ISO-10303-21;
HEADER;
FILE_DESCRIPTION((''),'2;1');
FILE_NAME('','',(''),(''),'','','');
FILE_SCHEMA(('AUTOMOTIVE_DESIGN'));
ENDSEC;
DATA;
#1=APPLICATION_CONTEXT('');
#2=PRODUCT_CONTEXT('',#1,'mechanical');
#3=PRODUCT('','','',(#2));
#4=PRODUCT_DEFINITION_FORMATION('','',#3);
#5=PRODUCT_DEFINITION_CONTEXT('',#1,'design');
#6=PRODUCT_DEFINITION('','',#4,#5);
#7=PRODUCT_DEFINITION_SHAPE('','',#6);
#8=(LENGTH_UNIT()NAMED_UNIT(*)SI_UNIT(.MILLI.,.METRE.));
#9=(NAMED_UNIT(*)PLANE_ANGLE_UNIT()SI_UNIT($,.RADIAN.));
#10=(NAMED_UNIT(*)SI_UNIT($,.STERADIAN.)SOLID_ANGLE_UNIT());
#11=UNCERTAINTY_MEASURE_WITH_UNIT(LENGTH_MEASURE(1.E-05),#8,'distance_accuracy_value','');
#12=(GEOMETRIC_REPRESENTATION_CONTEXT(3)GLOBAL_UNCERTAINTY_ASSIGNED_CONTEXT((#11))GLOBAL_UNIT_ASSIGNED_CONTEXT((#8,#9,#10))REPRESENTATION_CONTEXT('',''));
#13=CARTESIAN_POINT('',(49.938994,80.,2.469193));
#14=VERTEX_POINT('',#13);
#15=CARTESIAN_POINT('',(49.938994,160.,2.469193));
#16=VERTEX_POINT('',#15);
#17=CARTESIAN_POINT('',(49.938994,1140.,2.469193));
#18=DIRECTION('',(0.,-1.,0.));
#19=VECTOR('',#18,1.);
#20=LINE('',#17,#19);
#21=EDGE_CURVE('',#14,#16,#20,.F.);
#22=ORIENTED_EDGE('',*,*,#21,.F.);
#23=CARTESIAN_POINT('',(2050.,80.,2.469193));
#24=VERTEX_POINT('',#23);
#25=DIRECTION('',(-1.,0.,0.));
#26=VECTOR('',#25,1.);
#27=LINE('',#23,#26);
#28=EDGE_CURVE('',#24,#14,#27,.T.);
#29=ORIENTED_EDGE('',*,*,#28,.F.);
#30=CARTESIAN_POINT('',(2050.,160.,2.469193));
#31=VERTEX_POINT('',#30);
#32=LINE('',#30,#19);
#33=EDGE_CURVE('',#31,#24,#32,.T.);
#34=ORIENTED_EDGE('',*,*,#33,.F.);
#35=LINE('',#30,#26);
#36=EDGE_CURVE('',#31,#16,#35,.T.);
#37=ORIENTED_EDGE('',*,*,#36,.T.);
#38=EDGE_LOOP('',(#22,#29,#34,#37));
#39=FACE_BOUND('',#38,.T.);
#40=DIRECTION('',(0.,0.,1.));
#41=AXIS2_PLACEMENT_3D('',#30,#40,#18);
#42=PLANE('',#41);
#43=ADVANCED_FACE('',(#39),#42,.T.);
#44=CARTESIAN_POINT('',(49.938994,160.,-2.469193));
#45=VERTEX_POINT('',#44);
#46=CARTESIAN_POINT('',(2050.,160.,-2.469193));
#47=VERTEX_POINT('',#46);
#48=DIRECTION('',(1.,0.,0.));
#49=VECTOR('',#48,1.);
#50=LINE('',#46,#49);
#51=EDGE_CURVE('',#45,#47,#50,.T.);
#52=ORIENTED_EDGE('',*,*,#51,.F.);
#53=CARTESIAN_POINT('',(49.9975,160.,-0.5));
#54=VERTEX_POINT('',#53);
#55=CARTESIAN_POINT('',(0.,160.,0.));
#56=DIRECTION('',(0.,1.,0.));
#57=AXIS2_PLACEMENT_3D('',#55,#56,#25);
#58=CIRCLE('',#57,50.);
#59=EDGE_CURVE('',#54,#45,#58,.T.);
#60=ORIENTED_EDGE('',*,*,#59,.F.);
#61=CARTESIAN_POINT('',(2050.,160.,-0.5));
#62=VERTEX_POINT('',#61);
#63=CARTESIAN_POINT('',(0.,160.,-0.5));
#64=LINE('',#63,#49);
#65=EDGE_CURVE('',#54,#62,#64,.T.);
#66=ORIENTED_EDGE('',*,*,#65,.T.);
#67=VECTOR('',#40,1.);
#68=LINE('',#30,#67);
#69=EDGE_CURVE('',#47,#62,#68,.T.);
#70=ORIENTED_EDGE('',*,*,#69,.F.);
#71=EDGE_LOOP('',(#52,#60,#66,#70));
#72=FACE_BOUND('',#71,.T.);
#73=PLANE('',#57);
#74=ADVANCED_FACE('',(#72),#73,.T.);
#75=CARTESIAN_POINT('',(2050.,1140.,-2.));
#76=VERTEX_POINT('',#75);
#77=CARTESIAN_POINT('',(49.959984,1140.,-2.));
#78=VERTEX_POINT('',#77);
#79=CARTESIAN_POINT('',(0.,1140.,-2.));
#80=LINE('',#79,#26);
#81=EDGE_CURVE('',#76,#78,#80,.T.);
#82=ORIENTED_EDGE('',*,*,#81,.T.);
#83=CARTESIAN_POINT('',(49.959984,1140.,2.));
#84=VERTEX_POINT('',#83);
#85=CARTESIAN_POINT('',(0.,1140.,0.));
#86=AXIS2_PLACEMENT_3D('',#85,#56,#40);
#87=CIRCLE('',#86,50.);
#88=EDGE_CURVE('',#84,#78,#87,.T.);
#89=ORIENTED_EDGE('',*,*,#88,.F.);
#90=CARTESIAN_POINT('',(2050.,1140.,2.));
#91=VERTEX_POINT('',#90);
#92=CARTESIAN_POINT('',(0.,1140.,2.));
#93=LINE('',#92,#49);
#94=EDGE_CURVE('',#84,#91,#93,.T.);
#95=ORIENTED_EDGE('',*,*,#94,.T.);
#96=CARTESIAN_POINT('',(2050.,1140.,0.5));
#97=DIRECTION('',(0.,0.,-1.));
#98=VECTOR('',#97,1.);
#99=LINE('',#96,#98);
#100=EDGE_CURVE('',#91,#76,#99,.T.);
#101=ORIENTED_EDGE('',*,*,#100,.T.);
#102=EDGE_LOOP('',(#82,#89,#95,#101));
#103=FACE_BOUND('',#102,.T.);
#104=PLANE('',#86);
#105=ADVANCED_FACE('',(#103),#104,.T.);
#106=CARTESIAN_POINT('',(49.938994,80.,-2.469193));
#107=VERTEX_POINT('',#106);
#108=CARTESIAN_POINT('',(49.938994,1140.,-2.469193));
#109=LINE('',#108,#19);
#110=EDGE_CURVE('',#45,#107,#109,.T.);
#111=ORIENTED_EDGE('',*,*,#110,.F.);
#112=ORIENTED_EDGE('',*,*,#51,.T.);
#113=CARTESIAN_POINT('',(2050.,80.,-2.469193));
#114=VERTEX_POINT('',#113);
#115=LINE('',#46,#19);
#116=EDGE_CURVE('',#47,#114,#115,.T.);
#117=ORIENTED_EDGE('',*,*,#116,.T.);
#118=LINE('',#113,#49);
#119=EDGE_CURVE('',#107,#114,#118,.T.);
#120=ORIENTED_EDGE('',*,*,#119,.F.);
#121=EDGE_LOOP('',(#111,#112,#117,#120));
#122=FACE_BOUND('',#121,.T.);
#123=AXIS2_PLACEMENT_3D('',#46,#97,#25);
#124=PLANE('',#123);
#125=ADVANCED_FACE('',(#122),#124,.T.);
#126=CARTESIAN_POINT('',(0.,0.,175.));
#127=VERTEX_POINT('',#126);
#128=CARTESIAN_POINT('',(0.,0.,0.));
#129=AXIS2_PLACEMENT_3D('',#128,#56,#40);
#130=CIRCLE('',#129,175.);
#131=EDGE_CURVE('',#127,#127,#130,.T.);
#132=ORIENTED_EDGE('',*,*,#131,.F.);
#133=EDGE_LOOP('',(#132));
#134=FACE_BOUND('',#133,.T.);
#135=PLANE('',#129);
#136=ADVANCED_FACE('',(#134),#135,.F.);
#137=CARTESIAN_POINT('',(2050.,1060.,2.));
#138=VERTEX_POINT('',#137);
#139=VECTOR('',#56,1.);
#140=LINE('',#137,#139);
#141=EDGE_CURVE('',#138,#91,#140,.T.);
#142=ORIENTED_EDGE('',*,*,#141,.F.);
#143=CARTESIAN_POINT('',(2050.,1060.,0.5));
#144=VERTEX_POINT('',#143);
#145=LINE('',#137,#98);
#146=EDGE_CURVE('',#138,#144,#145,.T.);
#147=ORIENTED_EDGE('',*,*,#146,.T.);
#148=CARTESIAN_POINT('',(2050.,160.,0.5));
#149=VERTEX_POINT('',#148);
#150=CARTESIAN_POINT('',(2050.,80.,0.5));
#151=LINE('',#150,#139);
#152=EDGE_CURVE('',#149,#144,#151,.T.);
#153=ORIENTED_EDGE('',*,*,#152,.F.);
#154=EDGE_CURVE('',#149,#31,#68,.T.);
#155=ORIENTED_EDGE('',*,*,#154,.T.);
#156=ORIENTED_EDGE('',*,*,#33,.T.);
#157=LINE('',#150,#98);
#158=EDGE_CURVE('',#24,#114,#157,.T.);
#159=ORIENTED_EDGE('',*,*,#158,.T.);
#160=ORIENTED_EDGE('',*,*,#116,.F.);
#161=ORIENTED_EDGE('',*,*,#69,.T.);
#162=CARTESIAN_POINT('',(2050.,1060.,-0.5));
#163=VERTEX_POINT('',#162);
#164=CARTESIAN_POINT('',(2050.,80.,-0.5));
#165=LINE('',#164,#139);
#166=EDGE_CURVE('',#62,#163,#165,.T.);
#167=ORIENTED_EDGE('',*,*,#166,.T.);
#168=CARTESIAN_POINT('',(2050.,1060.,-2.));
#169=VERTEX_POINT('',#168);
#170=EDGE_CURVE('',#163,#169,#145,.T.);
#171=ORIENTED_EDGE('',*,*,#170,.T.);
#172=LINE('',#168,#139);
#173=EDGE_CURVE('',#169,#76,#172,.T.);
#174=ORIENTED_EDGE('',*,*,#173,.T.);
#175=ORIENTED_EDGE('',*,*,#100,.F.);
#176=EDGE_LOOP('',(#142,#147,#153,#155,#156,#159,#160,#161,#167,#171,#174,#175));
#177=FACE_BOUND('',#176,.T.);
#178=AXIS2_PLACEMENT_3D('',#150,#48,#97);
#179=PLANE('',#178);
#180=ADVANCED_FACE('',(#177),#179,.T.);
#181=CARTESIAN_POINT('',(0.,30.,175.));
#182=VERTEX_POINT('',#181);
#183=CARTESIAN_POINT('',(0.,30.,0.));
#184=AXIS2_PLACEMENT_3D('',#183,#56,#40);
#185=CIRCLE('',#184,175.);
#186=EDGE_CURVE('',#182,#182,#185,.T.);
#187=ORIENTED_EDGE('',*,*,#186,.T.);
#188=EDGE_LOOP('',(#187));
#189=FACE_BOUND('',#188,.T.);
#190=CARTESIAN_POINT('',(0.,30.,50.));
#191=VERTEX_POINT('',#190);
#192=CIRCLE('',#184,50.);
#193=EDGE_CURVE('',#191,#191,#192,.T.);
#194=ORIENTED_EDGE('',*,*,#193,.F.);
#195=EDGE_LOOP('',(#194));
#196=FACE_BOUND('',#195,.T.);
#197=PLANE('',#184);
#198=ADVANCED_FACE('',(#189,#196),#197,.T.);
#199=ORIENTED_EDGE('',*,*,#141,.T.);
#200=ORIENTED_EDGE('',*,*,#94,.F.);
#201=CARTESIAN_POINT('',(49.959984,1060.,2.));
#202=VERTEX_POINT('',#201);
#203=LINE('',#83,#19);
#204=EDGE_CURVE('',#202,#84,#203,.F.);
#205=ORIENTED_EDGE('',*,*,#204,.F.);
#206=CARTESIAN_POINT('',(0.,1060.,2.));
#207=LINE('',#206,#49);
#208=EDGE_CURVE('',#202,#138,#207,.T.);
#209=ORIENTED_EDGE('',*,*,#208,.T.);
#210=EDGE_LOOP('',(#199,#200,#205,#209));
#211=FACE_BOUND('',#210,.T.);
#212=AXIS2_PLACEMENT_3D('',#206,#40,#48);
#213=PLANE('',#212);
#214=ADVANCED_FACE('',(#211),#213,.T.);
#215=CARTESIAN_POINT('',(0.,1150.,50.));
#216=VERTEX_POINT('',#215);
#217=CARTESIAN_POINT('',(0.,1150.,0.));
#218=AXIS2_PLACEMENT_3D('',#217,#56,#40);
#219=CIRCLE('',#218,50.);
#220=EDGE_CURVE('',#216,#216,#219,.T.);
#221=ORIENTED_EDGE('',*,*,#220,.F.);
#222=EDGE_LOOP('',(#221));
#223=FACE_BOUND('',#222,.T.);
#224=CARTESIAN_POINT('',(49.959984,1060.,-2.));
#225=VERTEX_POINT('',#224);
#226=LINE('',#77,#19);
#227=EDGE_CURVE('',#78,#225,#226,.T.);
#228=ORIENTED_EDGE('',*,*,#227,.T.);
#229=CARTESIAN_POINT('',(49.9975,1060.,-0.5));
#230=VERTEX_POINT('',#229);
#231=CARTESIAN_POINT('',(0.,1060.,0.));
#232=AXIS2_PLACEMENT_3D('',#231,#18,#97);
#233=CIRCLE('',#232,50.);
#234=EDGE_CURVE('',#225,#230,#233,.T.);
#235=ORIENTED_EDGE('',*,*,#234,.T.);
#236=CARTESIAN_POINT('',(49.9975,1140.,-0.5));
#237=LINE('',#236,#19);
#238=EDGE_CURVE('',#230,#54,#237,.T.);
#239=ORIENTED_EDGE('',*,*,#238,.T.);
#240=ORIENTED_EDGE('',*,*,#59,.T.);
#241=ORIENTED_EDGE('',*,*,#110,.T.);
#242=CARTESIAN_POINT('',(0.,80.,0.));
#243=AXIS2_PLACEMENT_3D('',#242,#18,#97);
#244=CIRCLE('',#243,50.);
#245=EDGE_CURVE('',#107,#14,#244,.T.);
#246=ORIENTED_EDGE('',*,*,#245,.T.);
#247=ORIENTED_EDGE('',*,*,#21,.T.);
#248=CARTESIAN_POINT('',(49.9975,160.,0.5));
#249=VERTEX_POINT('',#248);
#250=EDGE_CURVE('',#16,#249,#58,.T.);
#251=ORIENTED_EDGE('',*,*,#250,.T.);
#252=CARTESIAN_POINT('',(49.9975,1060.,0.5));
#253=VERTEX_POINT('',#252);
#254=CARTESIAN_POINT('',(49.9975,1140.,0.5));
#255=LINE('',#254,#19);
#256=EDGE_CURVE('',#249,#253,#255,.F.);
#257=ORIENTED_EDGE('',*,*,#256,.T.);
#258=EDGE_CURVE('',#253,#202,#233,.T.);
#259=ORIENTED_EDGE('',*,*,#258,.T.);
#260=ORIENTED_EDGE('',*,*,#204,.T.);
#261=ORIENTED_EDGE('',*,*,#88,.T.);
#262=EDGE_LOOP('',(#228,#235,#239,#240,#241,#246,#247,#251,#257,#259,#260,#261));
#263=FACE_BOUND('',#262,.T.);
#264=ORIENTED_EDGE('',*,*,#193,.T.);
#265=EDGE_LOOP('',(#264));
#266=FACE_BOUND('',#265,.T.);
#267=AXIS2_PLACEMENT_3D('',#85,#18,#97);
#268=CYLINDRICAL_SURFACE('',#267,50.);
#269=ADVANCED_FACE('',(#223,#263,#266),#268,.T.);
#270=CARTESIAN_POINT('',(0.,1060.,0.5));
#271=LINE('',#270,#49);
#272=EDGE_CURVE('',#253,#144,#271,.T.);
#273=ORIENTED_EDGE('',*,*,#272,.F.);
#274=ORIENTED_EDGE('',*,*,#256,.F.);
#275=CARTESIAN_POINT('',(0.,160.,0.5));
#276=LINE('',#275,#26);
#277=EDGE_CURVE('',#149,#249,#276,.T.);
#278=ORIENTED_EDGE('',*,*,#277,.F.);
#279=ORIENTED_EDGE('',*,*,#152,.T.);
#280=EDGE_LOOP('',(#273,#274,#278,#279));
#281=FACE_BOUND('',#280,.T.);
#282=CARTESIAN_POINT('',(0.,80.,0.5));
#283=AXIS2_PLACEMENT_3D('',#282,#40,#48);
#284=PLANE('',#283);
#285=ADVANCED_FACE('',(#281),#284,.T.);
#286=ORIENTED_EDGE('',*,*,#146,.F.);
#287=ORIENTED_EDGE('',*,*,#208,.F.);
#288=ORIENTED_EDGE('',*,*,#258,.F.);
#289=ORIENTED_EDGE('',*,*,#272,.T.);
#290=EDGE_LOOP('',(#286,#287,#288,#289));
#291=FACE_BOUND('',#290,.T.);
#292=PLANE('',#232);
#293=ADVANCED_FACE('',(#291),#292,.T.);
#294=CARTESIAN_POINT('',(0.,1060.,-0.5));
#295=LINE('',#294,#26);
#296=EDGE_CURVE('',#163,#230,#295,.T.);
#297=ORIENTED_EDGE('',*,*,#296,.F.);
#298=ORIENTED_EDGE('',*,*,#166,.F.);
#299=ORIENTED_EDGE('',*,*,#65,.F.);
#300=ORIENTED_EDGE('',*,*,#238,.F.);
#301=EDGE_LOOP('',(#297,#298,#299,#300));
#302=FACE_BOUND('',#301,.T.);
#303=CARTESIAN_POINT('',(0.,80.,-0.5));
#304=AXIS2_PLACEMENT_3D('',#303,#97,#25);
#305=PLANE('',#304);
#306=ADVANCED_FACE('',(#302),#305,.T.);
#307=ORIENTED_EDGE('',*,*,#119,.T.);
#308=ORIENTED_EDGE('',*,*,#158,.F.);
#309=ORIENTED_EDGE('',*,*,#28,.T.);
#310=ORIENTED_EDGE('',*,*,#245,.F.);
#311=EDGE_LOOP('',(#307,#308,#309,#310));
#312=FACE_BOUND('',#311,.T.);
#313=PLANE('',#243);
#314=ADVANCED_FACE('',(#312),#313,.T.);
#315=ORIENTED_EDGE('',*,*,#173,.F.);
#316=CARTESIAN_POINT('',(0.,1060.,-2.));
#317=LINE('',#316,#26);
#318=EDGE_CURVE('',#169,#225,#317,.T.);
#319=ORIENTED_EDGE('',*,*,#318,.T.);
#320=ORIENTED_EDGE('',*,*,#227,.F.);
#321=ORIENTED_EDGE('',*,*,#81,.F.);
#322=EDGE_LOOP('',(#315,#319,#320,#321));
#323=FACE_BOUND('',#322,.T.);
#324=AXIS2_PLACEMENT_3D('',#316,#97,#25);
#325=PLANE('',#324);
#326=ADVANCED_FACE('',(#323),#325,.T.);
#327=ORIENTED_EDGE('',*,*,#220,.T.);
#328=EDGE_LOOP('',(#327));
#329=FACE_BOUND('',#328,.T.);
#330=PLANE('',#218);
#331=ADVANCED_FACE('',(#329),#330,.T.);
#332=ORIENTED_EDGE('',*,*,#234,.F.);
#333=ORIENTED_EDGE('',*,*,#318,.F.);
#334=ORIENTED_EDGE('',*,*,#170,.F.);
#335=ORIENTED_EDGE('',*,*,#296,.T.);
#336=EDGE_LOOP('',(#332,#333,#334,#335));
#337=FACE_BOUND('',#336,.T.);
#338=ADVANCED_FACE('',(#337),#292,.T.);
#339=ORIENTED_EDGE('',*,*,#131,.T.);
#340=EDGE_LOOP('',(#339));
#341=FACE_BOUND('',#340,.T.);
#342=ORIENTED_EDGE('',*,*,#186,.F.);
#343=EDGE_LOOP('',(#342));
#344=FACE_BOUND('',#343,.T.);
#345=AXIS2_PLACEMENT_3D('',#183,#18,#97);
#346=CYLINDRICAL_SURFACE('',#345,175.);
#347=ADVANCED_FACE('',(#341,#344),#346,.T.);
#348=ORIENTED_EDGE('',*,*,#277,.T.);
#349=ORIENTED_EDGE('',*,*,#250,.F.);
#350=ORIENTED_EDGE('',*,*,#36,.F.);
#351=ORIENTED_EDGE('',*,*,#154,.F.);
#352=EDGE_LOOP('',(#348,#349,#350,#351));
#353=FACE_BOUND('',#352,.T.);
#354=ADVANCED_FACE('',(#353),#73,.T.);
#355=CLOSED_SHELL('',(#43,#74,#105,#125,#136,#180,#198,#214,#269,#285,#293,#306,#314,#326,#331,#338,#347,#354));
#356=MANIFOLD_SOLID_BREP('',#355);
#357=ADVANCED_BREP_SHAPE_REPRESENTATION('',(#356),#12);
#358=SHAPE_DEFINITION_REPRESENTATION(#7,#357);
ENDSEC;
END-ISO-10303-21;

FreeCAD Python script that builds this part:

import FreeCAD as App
import Part
import Sketcher


def add_polygon(sketch, points):
    """Adds a closed chain of lines whose ends are joined by coincident constraints."""
    first, n = sketch.GeometryCount, len(points)
    for a, b in zip(points, points[1:] + points[:1]):
        sketch.addGeometry(Part.LineSegment(App.Vector(*a, 0), App.Vector(*b, 0)), False)
    for i in range(n):
        sketch.addConstraint(Sketcher.Constraint("Coincident", first + i, 2, first + (i + 1) % n, 1))

doc = App.newDocument("Part")
body = doc.addObject("PartDesign::Body", "Body")

# Sketch on XZ plane
sketch1 = body.newObject("Sketcher::SketchObject", "Sketch")
sketch1.AttachmentSupport = (doc.getObject("XZ_Plane"), [""])
sketch1.MapMode = "FlatFace"
sketch1.addGeometry(Part.Circle(App.Vector(0, 0, 0), App.Vector(0, 0, 1), 175), False)
sketch1.addConstraint([
    Sketcher.Constraint("Coincident", 0, 3, -1, 1),
    Sketcher.Constraint("Diameter", 0, 350.0),
])
pad1 = body.newObject("PartDesign::Pad", "Pad")
pad1.Profile = sketch1
pad1.Length = 30
pad1.Reversed = True

# Sketch on XZ plane
sketch2 = body.newObject("Sketcher::SketchObject", "Sketch001")
sketch2.AttachmentSupport = (doc.getObject("XZ_Plane"), [""])
sketch2.MapMode = "FlatFace"
sketch2.AttachmentOffset = App.Placement(App.Vector(0, 0, -30), App.Rotation())
sketch2.addGeometry(Part.Circle(App.Vector(0, 0, 0), App.Vector(0, 0, 1), 50), False)
sketch2.addConstraint([
    Sketcher.Constraint("Coincident", 0, 3, -1, 1),
    Sketcher.Constraint("Diameter", 0, 100.0),
])
pad2 = body.newObject("PartDesign::Pad", "Pad001")
pad2.Profile = sketch2
pad2.Length = 1110
pad2.Reversed = True

# Sketch on XZ plane
sketch3 = body.newObject("Sketcher::SketchObject", "Sketch002")
sketch3.AttachmentSupport = (doc.getObject("XZ_Plane"), [""])
sketch3.MapMode = "FlatFace"
sketch3.AttachmentOffset = App.Placement(App.Vector(0, 0, -1140), App.Rotation())
add_polygon(sketch3, [(0, -0.5), (0, 0.5), (2050, 0.5), (2050, -0.5)])  # lines 0-3
sketch3.addConstraint([
    Sketcher.Constraint("Vertical", 0),
    Sketcher.Constraint("Horizontal", 1),
    Sketcher.Constraint("Vertical", 2),
    Sketcher.Constraint("Horizontal", 3),
    Sketcher.Constraint("Symmetric", 0, 2, 3, 2, -1, 1),
    Sketcher.Constraint("DistanceX", 1, 1, 1, 2, 2050.0),
    Sketcher.Constraint("DistanceY", 0, 1, 0, 2, 1.0),
])
pad3 = body.newObject("PartDesign::Pad", "Pad002")
pad3.Profile = sketch3
pad3.Length = 1060

# Sketch on XZ plane
sketch4 = body.newObject("Sketcher::SketchObject", "Sketch003")
sketch4.AttachmentSupport = (doc.getObject("XZ_Plane"), [""])
sketch4.MapMode = "FlatFace"
sketch4.AttachmentOffset = App.Placement(App.Vector(0, 0, -1140), App.Rotation())
add_polygon(sketch4, [(0, -2), (0, 2), (2050, 2), (2050, -2)])  # lines 0-3
sketch4.addConstraint([
    Sketcher.Constraint("Vertical", 0),
    Sketcher.Constraint("Horizontal", 1),
    Sketcher.Constraint("Vertical", 2),
    Sketcher.Constraint("Horizontal", 3),
    Sketcher.Constraint("Symmetric", 0, 2, 3, 2, -1, 1),
    Sketcher.Constraint("DistanceX", 1, 1, 1, 2, 2050.0),
    Sketcher.Constraint("DistanceY", 0, 1, 0, 2, 4.0),
])
pad4 = body.newObject("PartDesign::Pad", "Pad003")
pad4.Profile = sketch4
pad4.Length = 80

# Sketch on XZ plane
sketch5 = body.newObject("Sketcher::SketchObject", "Sketch004")
sketch5.AttachmentSupport = (doc.getObject("XZ_Plane"), [""])
sketch5.MapMode = "FlatFace"
sketch5.AttachmentOffset = App.Placement(App.Vector(0, 0, -80), App.Rotation())
add_polygon(sketch5, [(2050, -2.5), (2050, 2.5), (0, 2.5), (0, -2.5)])  # lines 0-3
sketch5.addConstraint([
    Sketcher.Constraint("Vertical", 0),
    Sketcher.Constraint("Horizontal", 1),
    Sketcher.Constraint("Vertical", 2),
    Sketcher.Constraint("Horizontal", 3),
    Sketcher.Constraint("Symmetric", 1, 2, 2, 2, -1, 1),
    Sketcher.Constraint("DistanceX", 1, 2, 1, 1, 2050.0),
    Sketcher.Constraint("DistanceY", 0, 1, 0, 2, 4.938386),
])
pad5 = body.newObject("PartDesign::Pad", "Pad004")
pad5.Profile = sketch5
pad5.Length = 80
pad5.Reversed = True

# Sketch on XZ plane
sketch6 = body.newObject("Sketcher::SketchObject", "Sketch005")
sketch6.AttachmentSupport = (doc.getObject("XZ_Plane"), [""])
sketch6.MapMode = "FlatFace"
sketch6.AttachmentOffset = App.Placement(App.Vector(0, 0, -1140), App.Rotation())
sketch6.addGeometry(Part.Circle(App.Vector(0, 0, 0), App.Vector(0, 0, 1), 50), False)
sketch6.addConstraint([
    Sketcher.Constraint("Coincident", 0, 3, -1, 1),
    Sketcher.Constraint("Diameter", 0, 100.0),
])
pad6 = body.newObject("PartDesign::Pad", "Pad005")
pad6.Profile = sketch6
pad6.Length = 10
pad6.Reversed = True

doc.recompute()
